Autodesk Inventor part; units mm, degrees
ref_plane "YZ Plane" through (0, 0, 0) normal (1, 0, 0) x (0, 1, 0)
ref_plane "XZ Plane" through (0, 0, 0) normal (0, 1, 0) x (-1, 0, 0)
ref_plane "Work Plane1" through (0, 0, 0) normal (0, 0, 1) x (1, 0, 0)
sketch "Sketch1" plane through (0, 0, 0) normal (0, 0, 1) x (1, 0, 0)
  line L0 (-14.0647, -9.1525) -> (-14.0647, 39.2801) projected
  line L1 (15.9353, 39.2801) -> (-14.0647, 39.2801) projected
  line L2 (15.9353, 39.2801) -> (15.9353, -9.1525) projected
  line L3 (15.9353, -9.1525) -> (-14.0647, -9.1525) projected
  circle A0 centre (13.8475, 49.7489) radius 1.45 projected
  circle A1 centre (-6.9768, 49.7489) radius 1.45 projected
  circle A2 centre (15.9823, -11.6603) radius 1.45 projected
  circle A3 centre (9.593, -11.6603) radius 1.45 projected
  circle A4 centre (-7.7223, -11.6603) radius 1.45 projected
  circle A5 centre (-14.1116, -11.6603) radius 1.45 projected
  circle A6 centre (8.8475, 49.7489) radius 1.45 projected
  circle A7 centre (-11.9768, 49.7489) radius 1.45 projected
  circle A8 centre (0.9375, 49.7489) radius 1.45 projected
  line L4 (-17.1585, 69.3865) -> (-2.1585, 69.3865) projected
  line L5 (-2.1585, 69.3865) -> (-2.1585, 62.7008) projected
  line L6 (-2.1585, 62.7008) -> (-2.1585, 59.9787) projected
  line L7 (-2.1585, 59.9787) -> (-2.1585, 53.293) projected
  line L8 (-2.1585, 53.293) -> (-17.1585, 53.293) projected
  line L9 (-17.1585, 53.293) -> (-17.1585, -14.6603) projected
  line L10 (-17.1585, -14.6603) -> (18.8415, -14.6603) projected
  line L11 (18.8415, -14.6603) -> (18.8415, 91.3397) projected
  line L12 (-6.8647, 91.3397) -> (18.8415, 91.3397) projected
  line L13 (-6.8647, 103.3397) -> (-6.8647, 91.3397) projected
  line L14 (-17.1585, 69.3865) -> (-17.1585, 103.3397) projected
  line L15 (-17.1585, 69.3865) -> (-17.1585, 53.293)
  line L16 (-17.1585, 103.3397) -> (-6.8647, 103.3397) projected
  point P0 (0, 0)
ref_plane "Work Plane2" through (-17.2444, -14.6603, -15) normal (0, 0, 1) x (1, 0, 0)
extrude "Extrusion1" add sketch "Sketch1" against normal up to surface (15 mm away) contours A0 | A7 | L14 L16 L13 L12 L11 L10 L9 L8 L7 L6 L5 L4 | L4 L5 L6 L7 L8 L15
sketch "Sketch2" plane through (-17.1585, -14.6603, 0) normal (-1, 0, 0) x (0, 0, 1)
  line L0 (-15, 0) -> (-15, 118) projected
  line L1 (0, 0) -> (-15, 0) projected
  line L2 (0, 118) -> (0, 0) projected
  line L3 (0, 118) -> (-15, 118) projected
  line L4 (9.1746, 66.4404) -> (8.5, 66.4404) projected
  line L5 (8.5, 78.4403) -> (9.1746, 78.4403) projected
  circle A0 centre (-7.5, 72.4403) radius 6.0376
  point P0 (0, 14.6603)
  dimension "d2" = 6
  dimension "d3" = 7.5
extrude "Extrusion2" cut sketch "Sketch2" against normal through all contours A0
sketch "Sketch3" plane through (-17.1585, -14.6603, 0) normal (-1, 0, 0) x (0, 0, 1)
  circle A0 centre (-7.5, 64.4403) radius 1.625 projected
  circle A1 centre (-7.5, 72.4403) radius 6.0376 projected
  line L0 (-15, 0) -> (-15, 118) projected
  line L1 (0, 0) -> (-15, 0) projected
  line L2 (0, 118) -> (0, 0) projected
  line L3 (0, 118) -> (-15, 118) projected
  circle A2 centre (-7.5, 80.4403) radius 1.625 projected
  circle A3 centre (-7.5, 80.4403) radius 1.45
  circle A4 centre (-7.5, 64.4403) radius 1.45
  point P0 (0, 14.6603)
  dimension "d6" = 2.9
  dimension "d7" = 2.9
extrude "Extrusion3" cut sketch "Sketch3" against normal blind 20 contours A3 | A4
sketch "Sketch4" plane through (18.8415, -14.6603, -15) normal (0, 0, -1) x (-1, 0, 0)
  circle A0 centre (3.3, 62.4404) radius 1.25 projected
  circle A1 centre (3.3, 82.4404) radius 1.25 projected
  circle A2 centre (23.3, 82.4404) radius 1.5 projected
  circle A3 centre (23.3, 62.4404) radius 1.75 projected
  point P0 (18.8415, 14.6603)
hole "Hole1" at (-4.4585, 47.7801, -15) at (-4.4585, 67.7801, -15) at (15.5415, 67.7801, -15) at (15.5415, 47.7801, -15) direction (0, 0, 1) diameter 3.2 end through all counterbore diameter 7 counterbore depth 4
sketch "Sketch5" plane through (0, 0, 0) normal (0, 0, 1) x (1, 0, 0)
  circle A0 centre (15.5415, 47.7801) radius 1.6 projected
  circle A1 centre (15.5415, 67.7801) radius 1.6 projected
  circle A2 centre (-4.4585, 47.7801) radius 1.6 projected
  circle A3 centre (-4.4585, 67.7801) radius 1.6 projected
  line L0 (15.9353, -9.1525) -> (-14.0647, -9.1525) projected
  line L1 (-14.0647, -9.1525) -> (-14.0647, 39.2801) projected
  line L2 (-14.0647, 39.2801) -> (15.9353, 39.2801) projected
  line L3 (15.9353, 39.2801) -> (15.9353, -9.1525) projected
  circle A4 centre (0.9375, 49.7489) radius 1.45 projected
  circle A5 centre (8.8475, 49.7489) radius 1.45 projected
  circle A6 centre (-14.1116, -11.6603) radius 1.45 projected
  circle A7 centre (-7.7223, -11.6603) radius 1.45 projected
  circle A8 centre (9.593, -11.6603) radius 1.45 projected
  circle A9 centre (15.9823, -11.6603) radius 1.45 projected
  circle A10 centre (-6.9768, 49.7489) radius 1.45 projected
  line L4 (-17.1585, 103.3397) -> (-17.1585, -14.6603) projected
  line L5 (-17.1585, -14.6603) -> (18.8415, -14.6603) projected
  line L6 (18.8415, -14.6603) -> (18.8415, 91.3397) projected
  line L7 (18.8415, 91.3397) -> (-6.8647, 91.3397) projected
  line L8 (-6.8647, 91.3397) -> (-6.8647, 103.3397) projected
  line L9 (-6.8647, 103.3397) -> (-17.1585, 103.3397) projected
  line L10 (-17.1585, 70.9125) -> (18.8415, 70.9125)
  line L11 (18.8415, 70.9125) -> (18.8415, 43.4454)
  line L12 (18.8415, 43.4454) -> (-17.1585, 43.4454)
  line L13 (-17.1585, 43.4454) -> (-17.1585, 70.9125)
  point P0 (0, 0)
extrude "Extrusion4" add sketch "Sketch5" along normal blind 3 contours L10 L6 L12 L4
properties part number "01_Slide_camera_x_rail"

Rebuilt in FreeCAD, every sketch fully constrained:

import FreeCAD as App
import Part
import Sketcher

V = App.Vector


def add_polygon(sketch, points):
    """Adds a closed chain of lines whose ends are joined by coincident constraints."""
    first, n = sketch.GeometryCount, len(points)
    for a, b in zip(points, points[1:] + points[:1]):
        sketch.addGeometry(Part.LineSegment(App.Vector(*a, 0), App.Vector(*b, 0)), False)
    for i in range(n):
        sketch.addConstraint(Sketcher.Constraint("Coincident", first + i, 2, first + (i + 1) % n, 1))

doc = App.newDocument("Part")
body = doc.addObject("PartDesign::Body", "Body")

# Sketch on XY plane
sketch1 = body.newObject("Sketcher::SketchObject", "Sketch")
sketch1.AttachmentSupport = (doc.getObject("XY_Plane"), [""])
sketch1.MapMode = "FlatFace"
add_polygon(sketch1, [(-17.1585, 103.3397), (-17.1585, -14.6603), (18.8415, -14.6603), (18.8415, 91.3397), (-6.8647, 91.3397), (-6.8647, 103.3397)])  # lines 0-5
sketch1.addGeometry(Part.Circle(V(-14.1116, -11.6603, 0), V(0, 0, 1), 1.45), False)  # 6
sketch1.addGeometry(Part.Circle(V(-7.7223, -11.6603, 0), V(0, 0, 1), 1.45), False)  # 7
sketch1.addGeometry(Part.Circle(V(9.593, -11.6603, 0), V(0, 0, 1), 1.45), False)  # 8
sketch1.addGeometry(Part.Circle(V(15.9823, -11.6603, 0), V(0, 0, 1), 1.45), False)  # 9
add_polygon(sketch1, [(15.9353, -9.1525), (-14.0647, -9.1525), (-14.0647, 39.2801), (15.9353, 39.2801)])  # lines 10-13
sketch1.addGeometry(Part.Circle(V(-6.9768, 49.7489, 0), V(0, 0, 1), 1.45), False)  # 14
sketch1.addGeometry(Part.Circle(V(0.9375, 49.7489, 0), V(0, 0, 1), 1.45), False)  # 15
sketch1.addGeometry(Part.Circle(V(8.8475, 49.7489, 0), V(0, 0, 1), 1.45), False)  # 16
sketch1.addConstraint(Sketcher.Constraint("Vertical", 0))
sketch1.addConstraint(Sketcher.Constraint("Horizontal", 1))
sketch1.addConstraint(Sketcher.Constraint("Vertical", 2))
sketch1.addConstraint(Sketcher.Constraint("Horizontal", 3))
sketch1.addConstraint(Sketcher.Constraint("Vertical", 4))
sketch1.addConstraint(Sketcher.Constraint("Horizontal", 5))
sketch1.addConstraint(Sketcher.Constraint("Horizontal", 10))
sketch1.addConstraint(Sketcher.Constraint("Vertical", 11))
sketch1.addConstraint(Sketcher.Constraint("Horizontal", 12))
sketch1.addConstraint(Sketcher.Constraint("Vertical", 13))
sketch1.addConstraint(Sketcher.Constraint("Equal", 6, 7))
sketch1.addConstraint(Sketcher.Constraint("Equal", 7, 8))
sketch1.addConstraint(Sketcher.Constraint("Equal", 8, 9))
sketch1.addConstraint(Sketcher.Constraint("Equal", 9, 14))
sketch1.addConstraint(Sketcher.Constraint("Equal", 14, 15))
sketch1.addConstraint(Sketcher.Constraint("Equal", 15, 16))
sketch1.addConstraint(Sketcher.Constraint("Horizontal", 6, 3, 7, 3))
sketch1.addConstraint(Sketcher.Constraint("Horizontal", 7, 3, 8, 3))
sketch1.addConstraint(Sketcher.Constraint("Horizontal", 8, 3, 9, 3))
sketch1.addConstraint(Sketcher.Constraint("Horizontal", 14, 3, 15, 3))
sketch1.addConstraint(Sketcher.Constraint("Horizontal", 15, 3, 16, 3))
sketch1.addConstraint(Sketcher.Constraint("Diameter", 6, 2.9))
sketch1.addConstraint(Sketcher.Constraint("DistanceX", 1, 1, 1, 2, 36.0))
sketch1.addConstraint(Sketcher.Constraint("DistanceX", 10, 2, 10, 1, 30.0))
sketch1.addConstraint(Sketcher.Constraint("DistanceY", 0, 2, 0, 1, 118.0))
sketch1.addConstraint(Sketcher.Constraint("DistanceY", 2, 1, 2, 2, 106.0))
sketch1.addConstraint(Sketcher.Constraint("DistanceY", 0, 2, 6, 3, 3.0))
sketch1.addConstraint(Sketcher.Constraint("DistanceY", -1, 1, 11, 2, 39.28))
sketch1.addConstraint(Sketcher.Constraint("DistanceX", 15, 3, 16, 3, 7.91))
sketch1.addConstraint(Sketcher.Constraint("DistanceX", 3, 2, 3, 1, 25.7062))
sketch1.addConstraint(Sketcher.Constraint("DistanceY", 11, 1, 11, 2, 48.4326))
sketch1.addConstraint(Sketcher.Constraint("DistanceX", -1, 1, 8, 3, 9.593))
sketch1.addConstraint(Sketcher.Constraint("DistanceY", -1, 1, 14, 3, 49.749))
sketch1.addConstraint(Sketcher.Constraint("DistanceX", 6, 3, 9, 3, 30.094))
sketch1.addConstraint(Sketcher.Constraint("DistanceX", 14, 3, 9, 3, 22.959))
sketch1.addConstraint(Sketcher.Constraint("DistanceX", 6, 3, 15, 3, 15.049))
sketch1.addConstraint(Sketcher.Constraint("DistanceX", 0, 2, 6, 3, 3.047))
sketch1.addConstraint(Sketcher.Constraint("DistanceX", 6, 3, 10, 2, 0.047))
sketch1.addConstraint(Sketcher.Constraint("DistanceX", 6, 3, -1, 1, 14.1116))
sketch1.addConstraint(Sketcher.Constraint("DistanceY", 6, 3, -1, 1, 11.6603))
sketch1.addConstraint(Sketcher.Constraint("DistanceX", 7, 3, -1, 1, 7.7223))
pad1 = body.newObject("PartDesign::Pad", "Pad")
pad1.Profile = sketch1
pad1.Length = 15
pad1.Reversed = True

# Sketch on YZ plane
sketch2 = body.newObject("Sketcher::SketchObject", "Sketch001")
sketch2.AttachmentSupport = (doc.getObject("YZ_Plane"), [""])
sketch2.MapMode = "FlatFace"
sketch2.AttachmentOffset = App.Placement(V(0, 0, -17.1585), App.Rotation())
sketch2.addGeometry(Part.Circle(V(57.78, -7.5, 0), V(0, 0, 1), 6.0376), False)
sketch2.addConstraint(Sketcher.Constraint("DistanceY", 0, 3, -1, 1, 7.5))
sketch2.addConstraint(Sketcher.Constraint("Diameter", 0, 12.0752))
sketch2.addConstraint(Sketcher.Constraint("DistanceX", -1, 1, 0, 3, 57.78))
pocket1 = body.newObject("PartDesign::Pocket", "Pocket")
pocket1.Profile = sketch2
pocket1.Type = "ThroughAll"
pocket1.Reversed = True

# Sketch on YZ plane
sketch3 = body.newObject("Sketcher::SketchObject", "Sketch002")
sketch3.AttachmentSupport = (doc.getObject("YZ_Plane"), [""])
sketch3.MapMode = "FlatFace"
sketch3.AttachmentOffset = App.Placement(V(0, 0, -17.1585), App.Rotation())
sketch3.addGeometry(Part.Circle(V(65.78, -7.5, 0), V(0, 0, 1), 1.45), False)
sketch3.addGeometry(Part.Circle(V(49.78, -7.5, 0), V(0, 0, 1), 1.45), False)
sketch3.addConstraint(Sketcher.Constraint("Equal", 0, 1))
sketch3.addConstraint(Sketcher.Constraint("Horizontal", 0, 3, 1, 3))
sketch3.addConstraint(Sketcher.Constraint("Diameter", 0, 2.9))
sketch3.addConstraint(Sketcher.Constraint("DistanceX", 1, 3, 0, 3, 16.0))
sketch3.addConstraint(Sketcher.Constraint("DistanceY", 0, 3, -1, 1, 7.5))
sketch3.addConstraint(Sketcher.Constraint("DistanceX", -1, 1, 0, 3, 65.78))
pocket2 = body.newObject("PartDesign::Pocket", "Pocket001")
pocket2.Profile = sketch3
pocket2.Length = 20
pocket2.Reversed = True

# Sketch on XY plane
sketch4 = body.newObject("Sketcher::SketchObject", "Sketch003")
sketch4.AttachmentSupport = (doc.getObject("XY_Plane"), [""])
sketch4.MapMode = "FlatFace"
sketch4.AttachmentOffset = App.Placement(V(0, 0, -15), App.Rotation())
sketch4.addGeometry(Part.Circle(V(-4.4585, 47.7801, 0), V(0, 0, 1), 1.6), False)
sketch4.addGeometry(Part.Circle(V(-4.4585, 67.7801, 0), V(0, 0, 1), 1.6), False)
sketch4.addGeometry(Part.Circle(V(15.5415, 67.7801, 0), V(0, 0, 1), 1.6), False)
sketch4.addGeometry(Part.Circle(V(15.5415, 47.7801, 0), V(0, 0, 1), 1.6), False)
sketch4.addConstraint(Sketcher.Constraint("Equal", 0, 1))
sketch4.addConstraint(Sketcher.Constraint("Equal", 1, 2))
sketch4.addConstraint(Sketcher.Constraint("Equal", 2, 3))
sketch4.addConstraint(Sketcher.Constraint("Horizontal", 1, 3, 2, 3))
sketch4.addConstraint(Sketcher.Constraint("Horizontal", 0, 3, 3, 3))
sketch4.addConstraint(Sketcher.Constraint("Vertical", 0, 3, 1, 3))
sketch4.addConstraint(Sketcher.Constraint("Vertical", 2, 3, 3, 3))
sketch4.addConstraint(Sketcher.Constraint("Diameter", 0, 3.2))
sketch4.addConstraint(Sketcher.Constraint("DistanceY", 0, 3, 1, 3, 20.0))
sketch4.addConstraint(Sketcher.Constraint("DistanceX", 1, 3, 2, 3, 20.0))
sketch4.addConstraint(Sketcher.Constraint("DistanceY", -1, 1, 0, 3, 47.78))
sketch4.addConstraint(Sketcher.Constraint("DistanceX", 0, 3, -1, 1, 4.4585))
doc.recompute()
hole = body.newObject("PartDesign::Hole", "Hole")
hole.Profile = sketch4
hole.ThreadType = "None"
hole.Diameter = 3.2
hole.DepthType = "ThroughAll"
hole.HoleCutType = "Counterbore"
hole.HoleCutDiameter = 7
hole.HoleCutDepth = 4
hole.Reversed = True

# Sketch on XY plane
sketch5 = body.newObject("Sketcher::SketchObject", "Sketch004")
sketch5.AttachmentSupport = (doc.getObject("XY_Plane"), [""])
sketch5.MapMode = "FlatFace"
add_polygon(sketch5, [(18.8415, 70.9125), (-17.1585, 70.9125), (-17.1585, 43.4454), (18.8415, 43.4454)])  # lines 0-3
sketch5.addGeometry(Part.Circle(V(-6.9768, 49.7489, 0), V(0, 0, 1), 1.45), False)  # 4
sketch5.addGeometry(Part.Circle(V(-4.4585, 47.7801, 0), V(0, 0, 1), 1.6), False)  # 5
sketch5.addGeometry(Part.Circle(V(-4.4585, 67.7801, 0), V(0, 0, 1), 1.6), False)  # 6
sketch5.addGeometry(Part.Circle(V(0.9375, 49.7489, 0), V(0, 0, 1), 1.45), False)  # 7
sketch5.addGeometry(Part.Circle(V(8.8475, 49.7489, 0), V(0, 0, 1), 1.45), False)  # 8
sketch5.addGeometry(Part.Circle(V(15.5415, 47.7801, 0), V(0, 0, 1), 1.6), False)  # 9
sketch5.addGeometry(Part.Circle(V(15.5415, 67.7801, 0), V(0, 0, 1), 1.6), False)  # 10
sketch5.addConstraint(Sketcher.Constraint("Horizontal", 0))
sketch5.addConstraint(Sketcher.Constraint("Vertical", 1))
sketch5.addConstraint(Sketcher.Constraint("Horizontal", 2))
sketch5.addConstraint(Sketcher.Constraint("Vertical", 3))
sketch5.addConstraint(Sketcher.Constraint("Equal", 5, 6))
sketch5.addConstraint(Sketcher.Constraint("Equal", 4, 7))
sketch5.addConstraint(Sketcher.Constraint("Equal", 7, 8))
sketch5.addConstraint(Sketcher.Constraint("Equal", 6, 9))
sketch5.addConstraint(Sketcher.Constraint("Equal", 9, 10))
sketch5.addConstraint(Sketcher.Constraint("Horizontal", 4, 3, 7, 3))
sketch5.addConstraint(Sketcher.Constraint("Horizontal", 7, 3, 8, 3))
sketch5.addConstraint(Sketcher.Constraint("Horizontal", 5, 3, 9, 3))
sketch5.addConstraint(Sketcher.Constraint("Horizontal", 6, 3, 10, 3))
sketch5.addConstraint(Sketcher.Constraint("Vertical", 5, 3, 6, 3))
sketch5.addConstraint(Sketcher.Constraint("Vertical", 9, 3, 10, 3))
sketch5.addConstraint(Sketcher.Constraint("Diameter", 4, 2.9))
sketch5.addConstraint(Sketcher.Constraint("Diameter", 5, 3.2))
sketch5.addConstraint(Sketcher.Constraint("DistanceX", 0, 2, 0, 1, 36.0))
sketch5.addConstraint(Sketcher.Constraint("DistanceY", 5, 3, 6, 3, 20.0))
sketch5.addConstraint(Sketcher.Constraint("DistanceX", 5, 3, 9, 3, 20.0))
sketch5.addConstraint(Sketcher.Constraint("DistanceX", 0, 2, 6, 3, 12.7))
sketch5.addConstraint(Sketcher.Constraint("DistanceY", 1, 2, 1, 1, 27.467))
sketch5.addConstraint(Sketcher.Constraint("DistanceY", -1, 1, 5, 3, 47.78))
sketch5.addConstraint(Sketcher.Constraint("DistanceX", 7, 3, 8, 3, 7.91))
sketch5.addConstraint(Sketcher.Constraint("DistanceY", -1, 1, 4, 3, 49.749))
sketch5.addConstraint(Sketcher.Constraint("DistanceX", 5, 3, 7, 3, 5.396))
sketch5.addConstraint(Sketcher.Constraint("DistanceX", 4, 3, -1, 1, 6.9768))
sketch5.addConstraint(Sketcher.Constraint("DistanceX", 5, 3, -1, 1, 4.4585))
sketch5.addConstraint(Sketcher.Constraint("DistanceY", -1, 1, 0, 2, 70.9125))
pad2 = body.newObject("PartDesign::Pad", "Pad001")
pad2.Profile = sketch5
pad2.Length = 3

doc.recompute()
